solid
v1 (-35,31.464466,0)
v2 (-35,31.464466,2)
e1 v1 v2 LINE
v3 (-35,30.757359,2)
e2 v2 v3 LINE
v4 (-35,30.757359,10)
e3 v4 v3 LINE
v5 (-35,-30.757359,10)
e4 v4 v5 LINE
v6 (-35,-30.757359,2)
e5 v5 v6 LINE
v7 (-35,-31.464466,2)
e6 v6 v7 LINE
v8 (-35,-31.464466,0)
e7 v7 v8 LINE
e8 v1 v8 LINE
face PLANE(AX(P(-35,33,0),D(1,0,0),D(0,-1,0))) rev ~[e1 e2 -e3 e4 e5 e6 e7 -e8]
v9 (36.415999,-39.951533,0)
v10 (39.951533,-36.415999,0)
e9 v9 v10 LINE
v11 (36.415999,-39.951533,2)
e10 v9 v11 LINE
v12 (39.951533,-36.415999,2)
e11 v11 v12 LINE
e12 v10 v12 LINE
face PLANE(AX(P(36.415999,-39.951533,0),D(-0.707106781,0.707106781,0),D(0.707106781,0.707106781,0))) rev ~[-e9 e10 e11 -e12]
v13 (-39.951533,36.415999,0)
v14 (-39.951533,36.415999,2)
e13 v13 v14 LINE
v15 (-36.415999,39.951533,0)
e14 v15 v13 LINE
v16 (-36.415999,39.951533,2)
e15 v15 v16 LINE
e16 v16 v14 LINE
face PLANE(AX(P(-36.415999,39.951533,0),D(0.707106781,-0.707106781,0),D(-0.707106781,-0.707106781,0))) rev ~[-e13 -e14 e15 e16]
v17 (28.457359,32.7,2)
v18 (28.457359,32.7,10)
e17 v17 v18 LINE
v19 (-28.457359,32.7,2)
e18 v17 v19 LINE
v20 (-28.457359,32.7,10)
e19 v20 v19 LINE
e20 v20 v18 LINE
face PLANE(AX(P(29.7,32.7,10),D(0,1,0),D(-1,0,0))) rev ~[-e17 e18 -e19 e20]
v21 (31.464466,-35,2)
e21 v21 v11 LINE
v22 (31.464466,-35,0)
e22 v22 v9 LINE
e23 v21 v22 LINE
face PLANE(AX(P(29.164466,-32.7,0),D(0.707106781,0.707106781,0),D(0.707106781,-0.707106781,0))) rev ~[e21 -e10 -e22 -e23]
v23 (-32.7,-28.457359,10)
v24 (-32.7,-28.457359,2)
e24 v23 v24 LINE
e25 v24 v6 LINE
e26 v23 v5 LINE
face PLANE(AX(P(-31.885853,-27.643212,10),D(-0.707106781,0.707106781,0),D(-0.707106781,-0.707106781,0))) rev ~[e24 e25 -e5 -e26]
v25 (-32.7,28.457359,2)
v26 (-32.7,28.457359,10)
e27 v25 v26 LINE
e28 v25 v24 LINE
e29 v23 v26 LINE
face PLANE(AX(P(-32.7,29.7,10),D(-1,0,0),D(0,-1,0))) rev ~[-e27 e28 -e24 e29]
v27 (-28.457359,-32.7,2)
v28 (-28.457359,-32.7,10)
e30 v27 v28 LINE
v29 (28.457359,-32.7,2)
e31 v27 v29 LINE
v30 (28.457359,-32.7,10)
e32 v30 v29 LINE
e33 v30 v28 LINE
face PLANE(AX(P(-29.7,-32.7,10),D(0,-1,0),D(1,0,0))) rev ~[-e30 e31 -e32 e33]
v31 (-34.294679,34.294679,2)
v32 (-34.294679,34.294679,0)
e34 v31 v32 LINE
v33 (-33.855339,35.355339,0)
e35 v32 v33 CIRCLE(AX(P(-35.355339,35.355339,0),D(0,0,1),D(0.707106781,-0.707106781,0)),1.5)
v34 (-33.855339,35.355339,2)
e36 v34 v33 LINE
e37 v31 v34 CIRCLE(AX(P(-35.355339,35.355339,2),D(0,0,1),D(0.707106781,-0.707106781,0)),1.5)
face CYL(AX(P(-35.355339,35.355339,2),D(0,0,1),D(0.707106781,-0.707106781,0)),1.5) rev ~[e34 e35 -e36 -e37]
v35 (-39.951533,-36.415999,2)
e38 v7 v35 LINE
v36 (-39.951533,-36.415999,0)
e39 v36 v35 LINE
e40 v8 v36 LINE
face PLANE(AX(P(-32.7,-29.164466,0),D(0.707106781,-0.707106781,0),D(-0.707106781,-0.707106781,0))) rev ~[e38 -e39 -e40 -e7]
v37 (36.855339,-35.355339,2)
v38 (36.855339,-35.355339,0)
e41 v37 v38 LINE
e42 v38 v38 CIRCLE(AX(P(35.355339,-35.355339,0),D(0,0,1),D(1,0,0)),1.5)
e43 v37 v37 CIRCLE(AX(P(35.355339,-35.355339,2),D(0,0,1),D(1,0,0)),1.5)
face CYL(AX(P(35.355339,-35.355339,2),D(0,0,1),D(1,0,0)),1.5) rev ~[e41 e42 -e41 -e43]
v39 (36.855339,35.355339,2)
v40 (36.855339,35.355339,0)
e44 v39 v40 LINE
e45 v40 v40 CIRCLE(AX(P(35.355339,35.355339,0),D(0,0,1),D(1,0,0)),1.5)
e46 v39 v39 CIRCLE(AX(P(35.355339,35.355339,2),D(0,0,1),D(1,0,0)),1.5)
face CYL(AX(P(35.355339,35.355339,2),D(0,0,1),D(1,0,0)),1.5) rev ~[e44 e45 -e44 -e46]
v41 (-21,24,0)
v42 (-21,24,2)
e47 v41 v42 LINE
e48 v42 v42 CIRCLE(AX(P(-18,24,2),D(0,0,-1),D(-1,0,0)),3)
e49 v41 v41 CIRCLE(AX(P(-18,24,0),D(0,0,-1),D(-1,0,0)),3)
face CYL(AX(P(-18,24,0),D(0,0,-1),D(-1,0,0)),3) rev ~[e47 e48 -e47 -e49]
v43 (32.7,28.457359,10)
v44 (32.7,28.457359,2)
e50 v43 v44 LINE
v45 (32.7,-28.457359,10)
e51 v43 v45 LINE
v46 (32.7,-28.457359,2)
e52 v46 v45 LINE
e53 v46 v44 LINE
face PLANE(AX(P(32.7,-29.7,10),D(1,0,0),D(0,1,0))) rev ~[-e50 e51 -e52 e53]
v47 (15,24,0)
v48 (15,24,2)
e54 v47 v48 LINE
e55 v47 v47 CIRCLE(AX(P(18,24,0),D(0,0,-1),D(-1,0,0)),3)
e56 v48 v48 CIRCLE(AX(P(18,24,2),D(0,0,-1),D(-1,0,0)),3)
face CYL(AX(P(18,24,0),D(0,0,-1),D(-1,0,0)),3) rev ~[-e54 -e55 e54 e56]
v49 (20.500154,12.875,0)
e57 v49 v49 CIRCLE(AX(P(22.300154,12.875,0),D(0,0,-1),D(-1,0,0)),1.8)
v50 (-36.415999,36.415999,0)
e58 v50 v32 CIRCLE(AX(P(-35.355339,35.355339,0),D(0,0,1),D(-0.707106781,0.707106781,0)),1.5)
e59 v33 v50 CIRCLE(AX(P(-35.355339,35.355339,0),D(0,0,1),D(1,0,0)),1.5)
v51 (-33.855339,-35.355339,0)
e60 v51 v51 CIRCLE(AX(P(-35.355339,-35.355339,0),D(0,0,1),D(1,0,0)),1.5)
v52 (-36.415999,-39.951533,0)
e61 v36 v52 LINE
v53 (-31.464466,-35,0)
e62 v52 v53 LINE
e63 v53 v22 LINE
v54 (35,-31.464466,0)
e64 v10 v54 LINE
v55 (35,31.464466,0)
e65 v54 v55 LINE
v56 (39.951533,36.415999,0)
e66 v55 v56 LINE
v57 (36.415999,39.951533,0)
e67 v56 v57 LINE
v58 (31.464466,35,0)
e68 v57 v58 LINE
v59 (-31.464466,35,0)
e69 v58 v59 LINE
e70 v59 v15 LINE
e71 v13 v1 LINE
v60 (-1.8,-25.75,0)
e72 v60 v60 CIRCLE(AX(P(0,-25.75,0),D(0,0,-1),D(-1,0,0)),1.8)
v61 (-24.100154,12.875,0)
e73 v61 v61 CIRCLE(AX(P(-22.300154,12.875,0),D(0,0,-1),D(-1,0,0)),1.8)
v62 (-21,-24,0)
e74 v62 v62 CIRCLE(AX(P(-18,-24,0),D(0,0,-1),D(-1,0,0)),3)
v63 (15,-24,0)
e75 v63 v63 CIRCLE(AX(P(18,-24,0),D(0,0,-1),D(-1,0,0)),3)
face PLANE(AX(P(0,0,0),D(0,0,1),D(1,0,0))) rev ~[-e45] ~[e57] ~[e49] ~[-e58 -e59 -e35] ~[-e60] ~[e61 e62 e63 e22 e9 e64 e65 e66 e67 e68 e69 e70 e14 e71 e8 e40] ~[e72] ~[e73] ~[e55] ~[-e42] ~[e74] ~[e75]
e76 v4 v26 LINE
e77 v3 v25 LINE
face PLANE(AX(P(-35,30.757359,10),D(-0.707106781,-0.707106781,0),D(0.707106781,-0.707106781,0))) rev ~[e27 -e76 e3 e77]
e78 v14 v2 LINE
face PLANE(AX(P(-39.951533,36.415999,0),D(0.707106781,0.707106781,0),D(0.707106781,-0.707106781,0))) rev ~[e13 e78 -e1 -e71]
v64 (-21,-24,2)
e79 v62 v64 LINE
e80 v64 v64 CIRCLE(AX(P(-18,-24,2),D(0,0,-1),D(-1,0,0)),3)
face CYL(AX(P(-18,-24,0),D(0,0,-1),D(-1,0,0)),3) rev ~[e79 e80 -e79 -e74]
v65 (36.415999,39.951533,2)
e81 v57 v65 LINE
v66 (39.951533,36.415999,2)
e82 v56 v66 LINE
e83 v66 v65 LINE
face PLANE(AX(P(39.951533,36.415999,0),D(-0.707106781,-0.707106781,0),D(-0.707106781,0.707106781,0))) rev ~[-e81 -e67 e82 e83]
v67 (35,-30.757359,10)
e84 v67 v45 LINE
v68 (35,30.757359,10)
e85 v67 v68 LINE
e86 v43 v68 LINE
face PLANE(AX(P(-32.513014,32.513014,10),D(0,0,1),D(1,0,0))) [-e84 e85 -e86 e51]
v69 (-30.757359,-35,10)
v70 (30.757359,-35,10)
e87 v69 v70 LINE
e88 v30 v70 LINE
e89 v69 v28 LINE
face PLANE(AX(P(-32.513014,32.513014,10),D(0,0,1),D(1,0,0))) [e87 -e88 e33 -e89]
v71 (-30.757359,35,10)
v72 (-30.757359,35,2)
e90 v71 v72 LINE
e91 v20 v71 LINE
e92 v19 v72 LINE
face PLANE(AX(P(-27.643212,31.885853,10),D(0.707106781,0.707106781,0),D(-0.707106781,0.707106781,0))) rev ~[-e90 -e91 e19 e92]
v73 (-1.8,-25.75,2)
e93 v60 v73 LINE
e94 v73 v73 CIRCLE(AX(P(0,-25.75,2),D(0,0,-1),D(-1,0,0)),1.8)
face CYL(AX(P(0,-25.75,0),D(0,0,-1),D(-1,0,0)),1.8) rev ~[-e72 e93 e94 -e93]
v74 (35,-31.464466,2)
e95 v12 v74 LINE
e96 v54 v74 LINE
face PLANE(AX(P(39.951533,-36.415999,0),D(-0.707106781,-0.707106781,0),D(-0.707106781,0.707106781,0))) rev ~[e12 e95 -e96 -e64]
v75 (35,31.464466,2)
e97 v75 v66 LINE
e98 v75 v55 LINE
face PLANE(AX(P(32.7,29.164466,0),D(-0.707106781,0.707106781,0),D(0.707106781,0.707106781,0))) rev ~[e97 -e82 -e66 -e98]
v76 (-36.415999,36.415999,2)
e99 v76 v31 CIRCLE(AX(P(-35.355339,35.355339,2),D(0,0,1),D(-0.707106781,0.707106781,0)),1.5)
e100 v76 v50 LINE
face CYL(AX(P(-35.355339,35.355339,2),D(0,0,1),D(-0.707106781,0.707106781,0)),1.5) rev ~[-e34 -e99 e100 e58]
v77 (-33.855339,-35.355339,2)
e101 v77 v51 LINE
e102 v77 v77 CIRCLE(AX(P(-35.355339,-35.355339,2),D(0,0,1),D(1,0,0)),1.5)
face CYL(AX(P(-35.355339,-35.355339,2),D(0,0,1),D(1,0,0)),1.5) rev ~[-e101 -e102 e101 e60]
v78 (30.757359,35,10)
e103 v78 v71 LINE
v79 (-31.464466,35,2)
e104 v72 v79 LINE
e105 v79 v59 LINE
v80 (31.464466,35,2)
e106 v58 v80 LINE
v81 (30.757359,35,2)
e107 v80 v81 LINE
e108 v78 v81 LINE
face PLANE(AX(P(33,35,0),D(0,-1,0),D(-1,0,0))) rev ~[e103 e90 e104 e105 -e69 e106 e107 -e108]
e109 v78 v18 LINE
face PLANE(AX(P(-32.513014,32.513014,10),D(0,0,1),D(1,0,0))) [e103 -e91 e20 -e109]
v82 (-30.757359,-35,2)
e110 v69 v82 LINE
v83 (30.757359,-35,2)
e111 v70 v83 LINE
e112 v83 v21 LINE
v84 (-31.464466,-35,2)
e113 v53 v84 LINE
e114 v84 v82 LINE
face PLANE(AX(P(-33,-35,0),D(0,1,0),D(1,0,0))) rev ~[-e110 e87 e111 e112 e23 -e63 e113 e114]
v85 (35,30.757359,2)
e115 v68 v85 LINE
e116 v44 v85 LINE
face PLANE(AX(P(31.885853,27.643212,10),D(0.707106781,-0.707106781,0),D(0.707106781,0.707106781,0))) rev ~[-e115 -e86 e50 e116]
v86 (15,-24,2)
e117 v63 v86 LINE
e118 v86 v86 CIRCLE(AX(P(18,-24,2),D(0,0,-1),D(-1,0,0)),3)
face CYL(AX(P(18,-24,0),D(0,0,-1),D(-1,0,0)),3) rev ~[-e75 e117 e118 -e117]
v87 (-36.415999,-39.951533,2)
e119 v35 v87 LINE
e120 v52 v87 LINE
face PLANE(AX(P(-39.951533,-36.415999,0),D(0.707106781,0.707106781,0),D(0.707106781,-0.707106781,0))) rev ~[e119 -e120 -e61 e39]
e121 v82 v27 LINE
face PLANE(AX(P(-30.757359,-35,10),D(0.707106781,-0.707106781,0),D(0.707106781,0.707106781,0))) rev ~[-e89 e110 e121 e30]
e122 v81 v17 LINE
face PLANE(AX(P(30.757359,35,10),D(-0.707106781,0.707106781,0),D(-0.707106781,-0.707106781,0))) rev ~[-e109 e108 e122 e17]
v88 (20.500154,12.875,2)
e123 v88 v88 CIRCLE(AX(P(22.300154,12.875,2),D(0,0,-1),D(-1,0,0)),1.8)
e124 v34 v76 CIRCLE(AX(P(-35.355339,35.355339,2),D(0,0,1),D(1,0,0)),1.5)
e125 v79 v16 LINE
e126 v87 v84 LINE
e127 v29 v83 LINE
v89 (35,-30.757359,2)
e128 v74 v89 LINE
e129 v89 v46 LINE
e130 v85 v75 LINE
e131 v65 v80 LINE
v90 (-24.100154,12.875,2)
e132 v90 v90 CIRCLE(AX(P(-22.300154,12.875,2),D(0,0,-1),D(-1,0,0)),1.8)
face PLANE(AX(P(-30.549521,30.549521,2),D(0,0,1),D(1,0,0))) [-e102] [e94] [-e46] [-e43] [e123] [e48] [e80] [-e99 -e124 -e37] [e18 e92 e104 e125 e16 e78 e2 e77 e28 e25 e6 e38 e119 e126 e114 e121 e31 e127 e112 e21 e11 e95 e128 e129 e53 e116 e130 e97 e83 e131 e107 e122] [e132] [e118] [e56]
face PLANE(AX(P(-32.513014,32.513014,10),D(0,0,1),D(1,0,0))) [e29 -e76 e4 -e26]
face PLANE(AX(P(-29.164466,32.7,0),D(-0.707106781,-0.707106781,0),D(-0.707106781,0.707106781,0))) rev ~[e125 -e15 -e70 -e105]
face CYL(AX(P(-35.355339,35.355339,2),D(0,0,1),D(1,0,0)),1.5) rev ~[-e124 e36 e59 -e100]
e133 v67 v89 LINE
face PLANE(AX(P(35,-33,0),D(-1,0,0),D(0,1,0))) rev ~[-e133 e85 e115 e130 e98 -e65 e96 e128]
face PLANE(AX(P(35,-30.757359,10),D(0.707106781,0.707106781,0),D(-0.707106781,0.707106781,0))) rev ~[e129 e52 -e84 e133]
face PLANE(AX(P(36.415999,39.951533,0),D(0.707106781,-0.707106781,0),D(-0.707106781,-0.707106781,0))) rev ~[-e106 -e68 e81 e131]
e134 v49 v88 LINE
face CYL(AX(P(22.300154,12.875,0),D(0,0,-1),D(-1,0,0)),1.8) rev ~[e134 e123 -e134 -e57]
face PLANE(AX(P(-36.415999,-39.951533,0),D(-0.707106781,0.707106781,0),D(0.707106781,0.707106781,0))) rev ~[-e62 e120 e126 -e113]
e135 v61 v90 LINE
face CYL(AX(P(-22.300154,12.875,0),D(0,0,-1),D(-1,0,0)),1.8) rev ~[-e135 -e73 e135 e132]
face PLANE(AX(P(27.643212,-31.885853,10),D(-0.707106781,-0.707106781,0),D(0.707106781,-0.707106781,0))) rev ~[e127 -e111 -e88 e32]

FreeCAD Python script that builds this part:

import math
import FreeCAD as App
import Part
import Sketcher

V = App.Vector
Q = App.Units.Quantity


def add_polygon(sketch, points):
    """Adds a closed chain of lines whose ends are joined by coincident constraints."""
    first, n = sketch.GeometryCount, len(points)
    for a, b in zip(points, points[1:] + points[:1]):
        sketch.addGeometry(Part.LineSegment(App.Vector(*a, 0), App.Vector(*b, 0)), False)
    for i in range(n):
        sketch.addConstraint(Sketcher.Constraint("Coincident", first + i, 2, first + (i + 1) % n, 1))

doc = App.newDocument("Part")
body = doc.addObject("PartDesign::Body", "Body")

# Sketch on XY plane
sketch1 = body.newObject("Sketcher::SketchObject", "Sketch")
sketch1.AttachmentSupport = (doc.getObject("XY_Plane"), [""])
sketch1.MapMode = "FlatFace"
sketch1.addGeometry([
    Part.LineSegment(V(-33, -35, 0), V(33, -35, 0)),  # 0
    Part.ArcOfCircle(Part.Circle(V(33, -33, 0), V(0, 0, 1), 2), math.radians(-90), math.radians(0)),  # 1
    Part.LineSegment(V(35, -33, 0), V(35, 33, 0)),  # 2
    Part.ArcOfCircle(Part.Circle(V(33, 33, 0), V(0, 0, 1), 2), math.radians(0), math.radians(90)),  # 3
    Part.LineSegment(V(33, 35, 0), V(-33, 35, 0)),  # 4
    Part.ArcOfCircle(Part.Circle(V(-33, 33, 0), V(0, 0, 1), 2), math.radians(90), math.radians(180)),  # 5
    Part.LineSegment(V(-35, 33, 0), V(-35, -33, 0)),  # 6
    Part.ArcOfCircle(Part.Circle(V(-33, -33, 0), V(0, 0, 1), 2), math.radians(-180), math.radians(-90)),  # 7
], False)
sketch1.addConstraint([
    Sketcher.Constraint("Tangent", 0, 2, 1, 1),
    Sketcher.Constraint("Tangent", 1, 2, 2, 1),
    Sketcher.Constraint("Tangent", 2, 2, 3, 1),
    Sketcher.Constraint("Tangent", 3, 2, 4, 1),
    Sketcher.Constraint("Tangent", 4, 2, 5, 1),
    Sketcher.Constraint("Tangent", 5, 2, 6, 1),
    Sketcher.Constraint("Tangent", 6, 2, 7, 1),
    Sketcher.Constraint("Tangent", 7, 2, 0, 1),
    Sketcher.Constraint("Horizontal", 0),
    Sketcher.Constraint("Vertical", 2),
    Sketcher.Constraint("Horizontal", 4),
    Sketcher.Constraint("Vertical", 6),
    Sketcher.Constraint("Equal", 1, 3),
    Sketcher.Constraint("Equal", 3, 5),
    Sketcher.Constraint("Equal", 5, 7),
    Sketcher.Constraint("Symmetric", 1, 3, 5, 3, -1, 1),
    Sketcher.Constraint("Equal", 4, 2),
    Sketcher.Constraint("Radius", 1, Q("2 mm")),
    Sketcher.Constraint("DistanceX", 0, 1, 0, 2, Q("66 mm")),
])
pad1 = body.newObject("PartDesign::Pad", "Pad")
pad1.Profile = sketch1
pad1.Length = 10

# Sketch on XY plane
sketch2 = body.newObject("Sketcher::SketchObject", "Sketch001")
sketch2.AttachmentSupport = (doc.getObject("XY_Plane"), [""])
sketch2.MapMode = "FlatFace"
sketch2.AttachmentOffset = App.Placement(V(0, 0, 10), App.Rotation())
sketch2.addGeometry([
    Part.LineSegment(V(-29.7, -32.7, 0), V(29.7, -32.7, 0)),  # 0
    Part.ArcOfCircle(Part.Circle(V(29.7, -29.7, 0), V(0, 0, 1), 3), math.radians(-90), math.radians(0)),  # 1
    Part.LineSegment(V(32.7, -29.7, 0), V(32.7, 29.7, 0)),  # 2
    Part.ArcOfCircle(Part.Circle(V(29.7, 29.7, 0), V(0, 0, 1), 3), math.radians(0), math.radians(90)),  # 3
    Part.LineSegment(V(29.7, 32.7, 0), V(-29.7, 32.7, 0)),  # 4
    Part.ArcOfCircle(Part.Circle(V(-29.7, 29.7, 0), V(0, 0, 1), 3), math.radians(90), math.radians(180)),  # 5
    Part.LineSegment(V(-32.7, 29.7, 0), V(-32.7, -29.7, 0)),  # 6
    Part.ArcOfCircle(Part.Circle(V(-29.7, -29.7, 0), V(0, 0, 1), 3), math.radians(180), math.radians(270)),  # 7
], False)
sketch2.addConstraint([
    Sketcher.Constraint("Tangent", 0, 2, 1, 1),
    Sketcher.Constraint("Tangent", 1, 2, 2, 1),
    Sketcher.Constraint("Tangent", 2, 2, 3, 1),
    Sketcher.Constraint("Tangent", 3, 2, 4, 1),
    Sketcher.Constraint("Tangent", 4, 2, 5, 1),
    Sketcher.Constraint("Tangent", 5, 2, 6, 1),
    Sketcher.Constraint("Tangent", 6, 2, 7, 1),
    Sketcher.Constraint("Tangent", 7, 2, 0, 1),
    Sketcher.Constraint("Horizontal", 0),
    Sketcher.Constraint("Vertical", 2),
    Sketcher.Constraint("Horizontal", 4),
    Sketcher.Constraint("Vertical", 6),
    Sketcher.Constraint("Equal", 1, 3),
    Sketcher.Constraint("Equal", 3, 5),
    Sketcher.Constraint("Equal", 5, 7),
    Sketcher.Constraint("Symmetric", 1, 3, 5, 3, -1, 1),
    Sketcher.Constraint("Equal", 4, 2),
    Sketcher.Constraint("Radius", 1, Q("3 mm")),
    Sketcher.Constraint("DistanceX", 0, 1, 0, 2, Q("59.4 mm")),
])
pocket1 = body.newObject("PartDesign::Pocket", "Pocket")
pocket1.Profile = sketch2
pocket1.Length = 8

# Sketch on XY plane
sketch3 = body.newObject("Sketcher::SketchObject", "Sketch002")
sketch3.AttachmentSupport = (doc.getObject("XY_Plane"), [""])
sketch3.MapMode = "FlatFace"
sketch3.addGeometry(Part.Circle(V(22.3, 12.9, 0), V(0, 0, 1), 1.8), False)
sketch3.addConstraint([
    Sketcher.Constraint("Diameter", 0, Q("3.6 mm")),
    Sketcher.Constraint("DistanceY", -1, 1, 0, 3, Q("12.875 mm")),
    Sketcher.Constraint("DistanceX", -1, 1, 0, 3, Q("22.300154 mm")),
])
pocket2 = body.newObject("PartDesign::Pocket", "Pocket001")
pocket2.Profile = sketch3
pocket2.Type = "UpToFirst"
pocket2.Reversed = True

# Sketch on XY plane
sketch4 = body.newObject("Sketcher::SketchObject", "Sketch003")
sketch4.AttachmentSupport = (doc.getObject("XY_Plane"), [""])
sketch4.MapMode = "FlatFace"
sketch4.addGeometry(Part.Circle(V(-22.3, 12.9, 0), V(0, 0, 1), 1.8), False)
sketch4.addConstraint([
    Sketcher.Constraint("Diameter", 0, Q("3.6 mm")),
    Sketcher.Constraint("DistanceY", -1, 1, 0, 3, Q("12.875 mm")),
    Sketcher.Constraint("DistanceX", 0, 3, -1, 1, Q("22.300154 mm")),
])
pocket3 = body.newObject("PartDesign::Pocket", "Pocket002")
pocket3.Profile = sketch4
pocket3.Type = "UpToFirst"
pocket3.Reversed = True

# Sketch on XY plane
sketch5 = body.newObject("Sketcher::SketchObject", "Sketch004")
sketch5.AttachmentSupport = (doc.getObject("XY_Plane"), [""])
sketch5.MapMode = "FlatFace"
sketch5.addGeometry(Part.Circle(V(0, -25.8, 0), V(0, 0, 1), 1.8), False)
sketch5.addConstraint([
    Sketcher.Constraint("PointOnObject", 0, 3, -2),
    Sketcher.Constraint("Diameter", 0, Q("3.6 mm")),
    Sketcher.Constraint("DistanceY", 0, 3, -1, 1, Q("25.75 mm")),
])
pocket4 = body.newObject("PartDesign::Pocket", "Pocket003")
pocket4.Profile = sketch5
pocket4.Type = "UpToFirst"
pocket4.Reversed = True

# Sketch on XY plane
sketch6 = body.newObject("Sketcher::SketchObject", "Sketch005")
sketch6.AttachmentSupport = (doc.getObject("XY_Plane"), [""])
sketch6.MapMode = "FlatFace"
sketch6.addGeometry([
    Part.Circle(V(18, 24, 0), V(0, 0, 1), 3),
    Part.Circle(V(-18, 24, 0), V(0, 0, 1), 3),
    Part.Circle(V(18, -24, 0), V(0, 0, 1), 3),
    Part.Circle(V(-18, -24, 0), V(0, 0, 1), 3),
], False)
sketch6.addConstraint([
    Sketcher.Constraint("Equal", 0, 1),
    Sketcher.Constraint("Equal", 1, 2),
    Sketcher.Constraint("Equal", 2, 3),
    Sketcher.Constraint("Symmetric", 1, 3, 2, 3, -1, 1),
    Sketcher.Constraint("Symmetric", 0, 3, 3, 3, -1, 1),
    Sketcher.Constraint("Symmetric", 0, 3, 1, 3, -2),
    Sketcher.Constraint("Diameter", 0, Q("6 mm")),
    Sketcher.Constraint("DistanceX", -1, 1, 0, 3, Q("18 mm")),
    Sketcher.Constraint("DistanceY", -1, 1, 0, 3, Q("24 mm")),
])
pocket5 = body.newObject("PartDesign::Pocket", "Pocket004")
pocket5.Profile = sketch6
pocket5.Type = "ThroughAll"
pocket5.Reversed = True

# Sketch on XY plane
sketch7 = body.newObject("Sketcher::SketchObject", "Sketch006")
sketch7.AttachmentSupport = (doc.getObject("XY_Plane"), [""])
sketch7.MapMode = "FlatFace"
sketch7.addGeometry([
    Part.LineSegment(V(-29.2, 32.7, 0), V(-36.4, 40, 0)),  # 0
    Part.LineSegment(V(-36.4, 40, 0), V(-40, 36.4, 0)),  # 1
    Part.LineSegment(V(-40, 36.4, 0), V(-32.7, 29.2, 0)),  # 2
    Part.LineSegment(V(-32.7, 29.2, 0), V(-32.7, 29.7, 0)),  # 3
    Part.ArcOfCircle(Part.Circle(V(-29.7, 29.7, 0), V(0, 0, 1), 3), math.radians(90), math.radians(180)),  # 4
    Part.LineSegment(V(-29.7, 32.7, 0), V(-29.2, 32.7, 0)),  # 5
    Part.LineSegment(V(29.2, 32.7, 0), V(29.7, 32.7, 0)),  # 6
    Part.ArcOfCircle(Part.Circle(V(29.7, 29.7, 0), V(0, 0, 1), 3), math.radians(0), math.radians(90)),  # 7
    Part.LineSegment(V(32.7, 29.7, 0), V(32.7, 29.2, 0)),  # 8
    Part.LineSegment(V(32.7, 29.2, 0), V(40, 36.4, 0)),  # 9
    Part.LineSegment(V(40, 36.4, 0), V(36.4, 40, 0)),  # 10
    Part.LineSegment(V(36.4, 40, 0), V(29.2, 32.7, 0)),  # 11
    Part.LineSegment(V(36.4, -40, 0), V(40, -36.4, 0)),  # 12
    Part.LineSegment(V(40, -36.4, 0), V(32.7, -29.2, 0)),  # 13
    Part.LineSegment(V(32.7, -29.2, 0), V(32.7, -29.7, 0)),  # 14
    Part.ArcOfCircle(Part.Circle(V(29.7, -29.7, 0), V(0, 0, 1), 3), math.radians(-90), math.radians(0)),  # 15
    Part.LineSegment(V(29.7, -32.7, 0), V(29.2, -32.7, 0)),  # 16
    Part.LineSegment(V(29.2, -32.7, 0), V(36.4, -40, 0)),  # 17
    Part.LineSegment(V(-40, -36.4, 0), V(-36.4, -40, 0)),  # 18
    Part.LineSegment(V(-36.4, -40, 0), V(-29.2, -32.7, 0)),  # 19
    Part.LineSegment(V(-29.2, -32.7, 0), V(-29.7, -32.7, 0)),  # 20
    Part.ArcOfCircle(Part.Circle(V(-29.7, -29.7, 0), V(0, 0, 1), 3), math.radians(180), math.radians(270)),  # 21
    Part.LineSegment(V(-32.7, -29.7, 0), V(-32.7, -29.2, 0)),  # 22
    Part.LineSegment(V(-32.7, -29.2, 0), V(-40, -36.4, 0)),  # 23
], False)
sketch7.addConstraint([
    Sketcher.Constraint("Coincident", 0, 2, 1, 1),
    Sketcher.Constraint("Coincident", 1, 2, 2, 1),
    Sketcher.Constraint("Coincident", 2, 2, 3, 1),
    Sketcher.Constraint("Tangent", 3, 2, 4, 2),
    Sketcher.Constraint("Tangent", 4, 1, 5, 1),
    Sketcher.Constraint("Coincident", 5, 2, 0, 1),
    Sketcher.Constraint("Tangent", 6, 2, 7, 2),
    Sketcher.Constraint("Tangent", 7, 1, 8, 1),
    Sketcher.Constraint("Coincident", 8, 2, 9, 1),
    Sketcher.Constraint("Coincident", 9, 2, 10, 1),
    Sketcher.Constraint("Coincident", 10, 2, 11, 1),
    Sketcher.Constraint("Coincident", 11, 2, 6, 1),
    Sketcher.Constraint("Coincident", 12, 2, 13, 1),
    Sketcher.Constraint("Coincident", 13, 2, 14, 1),
    Sketcher.Constraint("Tangent", 14, 2, 15, 2),
    Sketcher.Constraint("Tangent", 15, 1, 16, 1),
    Sketcher.Constraint("Coincident", 16, 2, 17, 1),
    Sketcher.Constraint("Coincident", 17, 2, 12, 1),
    Sketcher.Constraint("Coincident", 18, 2, 19, 1),
    Sketcher.Constraint("Coincident", 19, 2, 20, 1),
    Sketcher.Constraint("Tangent", 20, 2, 21, 2),
    Sketcher.Constraint("Tangent", 21, 1, 22, 1),
    Sketcher.Constraint("Coincident", 22, 2, 23, 1),
    Sketcher.Constraint("Coincident", 23, 2, 18, 1),
    Sketcher.Constraint("Vertical", 3),
    Sketcher.Constraint("Horizontal", 5),
    Sketcher.Constraint("Horizontal", 6),
    Sketcher.Constraint("Vertical", 8),
    Sketcher.Constraint("Vertical", 14),
    Sketcher.Constraint("Horizontal", 16),
    Sketcher.Constraint("Horizontal", 20),
    Sketcher.Constraint("Vertical", 22),
    Sketcher.Constraint("Equal", 4, 7),
    Sketcher.Constraint("Equal", 7, 15),
    Sketcher.Constraint("Equal", 15, 21),
    Sketcher.Constraint("Symmetric", 4, 3, 15, 3, -1, 1),
    Sketcher.Constraint("Symmetric", 7, 3, 21, 3, -1, 1),
    Sketcher.Constraint("Symmetric", 1, 2, 12, 2, -1, 1),
    Sketcher.Constraint("Symmetric", 0, 2, 17, 2, -1, 1),
    Sketcher.Constraint("Symmetric", 10, 2, 18, 2, -1, 1),
    Sketcher.Constraint("Symmetric", 9, 2, 23, 2, -1, 1),
    Sketcher.Constraint("Symmetric", 4, 3, 7, 3, -2),
    Sketcher.Constraint("Symmetric", 1, 2, 9, 2, -2),
    Sketcher.Constraint("Symmetric", 0, 2, 10, 2, -2),
    Sketcher.Constraint("Perpendicular", 0, 1),
    Sketcher.Constraint("Perpendicular", 1, 2),
    Sketcher.Constraint("Perpendicular", 2, 9),
    Sketcher.Constraint("Perpendicular", 9, 10),
    Sketcher.Constraint("Perpendicular", 10, 11),
    Sketcher.Constraint("Perpendicular", 12, 13),
    Sketcher.Constraint("Parallel", 13, 17),
    Sketcher.Constraint("Perpendicular", 18, 19),
    Sketcher.Constraint("Parallel", 19, 23),
    Sketcher.Constraint("Equal", 20, 3),
    Sketcher.Constraint("Radius", 4, Q("3 mm")),
    Sketcher.Constraint("Distance", 1, Q("5 mm")),
    Sketcher.Constraint("DistanceX", 4, 3, -1, 1, Q("29.7 mm")),
    Sketcher.Constraint("DistanceY", -1, 1, 4, 3, Q("29.7 mm")),
    Sketcher.Constraint("DistanceX", 0, 2, -1, 1, Q("36.415999 mm")),
])
pad2 = body.newObject("PartDesign::Pad", "Pad001")
pad2.Profile = sketch7
pad2.Length = 10

# Sketch on XY plane
sketch8 = body.newObject("Sketcher::SketchObject", "Sketch007")
sketch8.AttachmentSupport = (doc.getObject("XY_Plane"), [""])
sketch8.MapMode = "FlatFace"
sketch8.AttachmentOffset = App.Placement(V(0, 0, 10), App.Rotation())
add_polygon(sketch8, [(-30.8, -35), (-27.6, -31.9), (-31.9, -27.6), (-35, -30.8), (-35, -31.5), (-40, -36.4), (-36.4, -40), (-31.5, -35)])  # lines 0-7
add_polygon(sketch8, [(30.8, -35), (31.5, -35), (36.4, -40), (40, -36.4), (35, -31.5), (35, -30.8), (31.9, -27.6), (27.6, -31.9)])  # lines 8-15
add_polygon(sketch8, [(35, 30.8), (35, 31.5), (40, 36.4), (36.4, 40), (31.5, 35), (30.8, 35), (27.6, 31.9), (31.9, 27.6)])  # lines 16-23
add_polygon(sketch8, [(-31.9, 27.6), (-27.6, 31.9), (-30.8, 35), (-31.5, 35), (-36.4, 40), (-40, 36.4), (-35, 31.5), (-35, 30.8)])  # lines 24-31
sketch8.addConstraint([
    Sketcher.Constraint("Vertical", 3),
    Sketcher.Constraint("Horizontal", 7),
    Sketcher.Constraint("Horizontal", 8),
    Sketcher.Constraint("Vertical", 12),
    Sketcher.Constraint("Vertical", 16),
    Sketcher.Constraint("Horizontal", 20),
    Sketcher.Constraint("Horizontal", 26),
    Sketcher.Constraint("Vertical", 30),
    Sketcher.Constraint("Symmetric", 3, 2, 16, 2, -1, 1),
    Sketcher.Constraint("Symmetric", 4, 2, 17, 2, -1, 1),
    Sketcher.Constraint("Symmetric", 5, 2, 18, 2, -1, 1),
    Sketcher.Constraint("Symmetric", 6, 2, 19, 2, -1, 1),
    Sketcher.Constraint("Symmetric", 0, 2, 21, 2, -1, 1),
    Sketcher.Constraint("Symmetric", 1, 2, 22, 2, -1, 1),
    Sketcher.Constraint("Symmetric", 14, 2, 24, 2, -1, 1),
    Sketcher.Constraint("Symmetric", 15, 2, 25, 2, -1, 1),
    Sketcher.Constraint("Symmetric", 9, 2, 27, 2, -1, 1),
    Sketcher.Constraint("Symmetric", 10, 2, 28, 2, -1, 1),
    Sketcher.Constraint("Symmetric", 11, 2, 29, 2, -1, 1),
    Sketcher.Constraint("Symmetric", 13, 2, 31, 2, -1, 1),
    Sketcher.Constraint("Symmetric", 6, 2, 8, 2, -2),
    Sketcher.Constraint("Symmetric", 5, 2, 9, 2, -2),
    Sketcher.Constraint("Symmetric", 4, 2, 10, 2, -2),
    Sketcher.Constraint("Symmetric", 3, 2, 11, 2, -2),
    Sketcher.Constraint("Symmetric", 1, 2, 13, 2, -2),
    Sketcher.Constraint("Symmetric", 0, 2, 14, 2, -2),
    Sketcher.Constraint("Perpendicular", 0, 1),
    Sketcher.Constraint("Perpendicular", 1, 2),
    Sketcher.Constraint("Parallel", 2, 4),
    Sketcher.Constraint("Perpendicular", 4, 5),
    Sketcher.Constraint("Perpendicular", 5, 6),
    Sketcher.Constraint("Perpendicular", 6, 9),
    Sketcher.Constraint("Parallel", 11, 13),
    Sketcher.Constraint("Perpendicular", 14, 15),
    Sketcher.Constraint("Parallel", 19, 21),
    Sketcher.Constraint("Perpendicular", 22, 23),
    Sketcher.Constraint("Parallel", 25, 27),
    Sketcher.Constraint("Parallel", 29, 31),
    Sketcher.Constraint("Equal", 26, 3),
    Sketcher.Constraint("Equal", 0, 2),
    Sketcher.Constraint("Distance", 1, Q("6 mm")),
    Sketcher.Constraint("Distance", 5, Q("5 mm")),
    Sketcher.Constraint("DistanceX", 2, 2, -1, 1, Q("35 mm")),
    Sketcher.Constraint("DistanceY", 6, 2, -1, 1, Q("35 mm")),
    Sketcher.Constraint("DistanceY", 4, 2, -1, 1, Q("36.415999 mm")),
    Sketcher.Constraint("Distance", 0, Q("4.404069 mm")),
])
pocket6 = body.newObject("PartDesign::Pocket", "Pocket005")
pocket6.Profile = sketch8
pocket6.Length = 8

# Sketch on XY plane
sketch9 = body.newObject("Sketcher::SketchObject", "Sketch008")
sketch9.AttachmentSupport = (doc.getObject("XY_Plane"), [""])
sketch9.MapMode = "FlatFace"
sketch9.AttachmentOffset = App.Placement(V(0, 0, 2), App.Rotation())
sketch9.addGeometry([
    Part.ArcOfCircle(Part.Circle(V(-35.4, 35.4, 0), V(0, 0, 1), 1.5), math.radians(135), math.radians(315)),
    Part.LineSegment(V(-34.3, 34.3, 0), V(-36.4, 36.4, 0)),
], False)
sketch9.addConstraint([
    Sketcher.Constraint("Coincident", 0, 1, 1, 2),
    Sketcher.Constraint("Coincident", 1, 1, 0, 2),
    Sketcher.Constraint("Radius", 0, Q("1.5 mm")),
    Sketcher.Constraint("Angle", 1, Q("135 deg")),
    Sketcher.Constraint("DistanceX", 0, 1, -1, 1, Q("36.415999 mm")),
    Sketcher.Constraint("DistanceY", -1, 1, 0, 1, Q("36.415999 mm")),
    Sketcher.Constraint("DistanceX", 0, 3, -1, 1, Q("35.355339 mm")),
])
pocket7 = body.newObject("PartDesign::Pocket", "Pocket006")
pocket7.Profile = sketch9
pocket7.Type = "UpToFirst"

# Sketch on XY plane
sketch10 = body.newObject("Sketcher::SketchObject", "Sketch009")
sketch10.AttachmentSupport = (doc.getObject("XY_Plane"), [""])
sketch10.MapMode = "FlatFace"
sketch10.AttachmentOffset = App.Placement(V(0, 0, 2), App.Rotation())
sketch10.addGeometry([
    Part.LineSegment(V(-36.4, 36.4, 0), V(-34.3, 34.3, 0)),
    Part.ArcOfCircle(Part.Circle(V(-35.4, 35.4, 0), V(0, 0, 1), 1.5), math.radians(-45), math.radians(0)),
    Part.ArcOfCircle(Part.Circle(V(-35.4, 35.4, 0), V(0, 0, 1), 1.5), math.radians(0), math.radians(135)),
], False)
sketch10.addConstraint([
    Sketcher.Constraint("Coincident", 0, 2, 1, 1),
    Sketcher.Constraint("Tangent", 1, 2, 2, 1),
    Sketcher.Constraint("Coincident", 2, 2, 0, 1),
    Sketcher.Constraint("Equal", 1, 2),
    Sketcher.Constraint("Horizontal", 2, 3, 1, 2),
    Sketcher.Constraint("Radius", 1, Q("1.5 mm")),
    Sketcher.Constraint("Angle", 0, Q("-45 deg")),
    Sketcher.Constraint("DistanceX", 2, 2, -1, 1, Q("36.415999 mm")),
    Sketcher.Constraint("DistanceY", -1, 1, 2, 2, Q("36.415999 mm")),
    Sketcher.Constraint("DistanceX", 1, 3, -1, 1, Q("35.355339 mm")),
])
pocket8 = body.newObject("PartDesign::Pocket", "Pocket007")
pocket8.Profile = sketch10
pocket8.Type = "UpToFirst"

# Sketch on XY plane
sketch11 = body.newObject("Sketcher::SketchObject", "Sketch010")
sketch11.AttachmentSupport = (doc.getObject("XY_Plane"), [""])
sketch11.MapMode = "FlatFace"
sketch11.AttachmentOffset = App.Placement(V(0, 0, 2), App.Rotation())
sketch11.addGeometry([
    Part.ArcOfCircle(Part.Circle(V(-35.4, 35.4, 0), V(0, 0, 1), 1.5), math.radians(135), math.radians(315)),
    Part.LineSegment(V(-34.3, 34.3, 0), V(-36.4, 36.4, 0)),
], False)
sketch11.addConstraint([
    Sketcher.Constraint("Coincident", 0, 1, 1, 2),
    Sketcher.Constraint("Coincident", 1, 1, 0, 2),
    Sketcher.Constraint("Radius", 0, Q("1.5 mm")),
    Sketcher.Constraint("Angle", 1, Q("135 deg")),
    Sketcher.Constraint("DistanceX", 0, 1, -1, 1, Q("36.415999 mm")),
    Sketcher.Constraint("DistanceY", -1, 1, 0, 1, Q("36.415999 mm")),
    Sketcher.Constraint("DistanceX", 0, 3, -1, 1, Q("35.355339 mm")),
])
pocket9 = body.newObject("PartDesign::Pocket", "Pocket008")
pocket9.Profile = sketch11
pocket9.Length = 2

# Sketch on XY plane
sketch12 = body.newObject("Sketcher::SketchObject", "Sketch011")
sketch12.AttachmentSupport = (doc.getObject("XY_Plane"), [""])
sketch12.MapMode = "FlatFace"
sketch12.AttachmentOffset = App.Placement(V(0, 0, 2), App.Rotation())
sketch12.addGeometry([
    Part.LineSegment(V(-36.4, 36.4, 0), V(-34.3, 34.3, 0)),
    Part.ArcOfCircle(Part.Circle(V(-35.4, 35.4, 0), V(0, 0, 1), 1.5), math.radians(-45), math.radians(0)),
    Part.ArcOfCircle(Part.Circle(V(-35.4, 35.4, 0), V(0, 0, 1), 1.5), math.radians(0), math.radians(135)),
], False)
sketch12.addConstraint([
    Sketcher.Constraint("Coincident", 0, 2, 1, 1),
    Sketcher.Constraint("Tangent", 1, 2, 2, 1),
    Sketcher.Constraint("Coincident", 2, 2, 0, 1),
    Sketcher.Constraint("Equal", 1, 2),
    Sketcher.Constraint("Horizontal", 2, 3, 1, 2),
    Sketcher.Constraint("Radius", 1, Q("1.5 mm")),
    Sketcher.Constraint("Angle", 0, Q("-45 deg")),
    Sketcher.Constraint("DistanceX", 2, 2, -1, 1, Q("36.415999 mm")),
    Sketcher.Constraint("DistanceY", -1, 1, 2, 2, Q("36.415999 mm")),
    Sketcher.Constraint("DistanceX", 1, 3, -1, 1, Q("35.355339 mm")),
])
pocket10 = body.newObject("PartDesign::Pocket", "Pocket009")
pocket10.Profile = sketch12
pocket10.Length = 2

# Sketch on XY plane
sketch13 = body.newObject("Sketcher::SketchObject", "Sketch012")
sketch13.AttachmentSupport = (doc.getObject("XY_Plane"), [""])
sketch13.MapMode = "FlatFace"
sketch13.AttachmentOffset = App.Placement(V(0, 0, 2), App.Rotation())
sketch13.addGeometry(Part.Circle(V(35.4, 35.4, 0), V(0, 0, 1), 1.5), False)
sketch13.addConstraint([
    Sketcher.Constraint("Diameter", 0, Q("3 mm")),
    Sketcher.Constraint("DistanceX", -1, 1, 0, 3, Q("35.355339 mm")),
    Sketcher.Constraint("DistanceY", -1, 1, 0, 3, Q("35.355339 mm")),
])
pocket11 = body.newObject("PartDesign::Pocket", "Pocket010")
pocket11.Profile = sketch13
pocket11.Type = "UpToFirst"

# Sketch on XY plane
sketch14 = body.newObject("Sketcher::SketchObject", "Sketch013")
sketch14.AttachmentSupport = (doc.getObject("XY_Plane"), [""])
sketch14.MapMode = "FlatFace"
sketch14.AttachmentOffset = App.Placement(V(0, 0, 2), App.Rotation())
sketch14.addGeometry(Part.Circle(V(35.4, -35.4, 0), V(0, 0, 1), 1.5), False)
sketch14.addConstraint([
    Sketcher.Constraint("Diameter", 0, Q("3 mm")),
    Sketcher.Constraint("DistanceX", -1, 1, 0, 3, Q("35.355339 mm")),
    Sketcher.Constraint("DistanceY", 0, 3, -1, 1, Q("35.355339 mm")),
])
pocket12 = body.newObject("PartDesign::Pocket", "Pocket011")
pocket12.Profile = sketch14
pocket12.Type = "UpToFirst"

# Sketch on XY plane
sketch15 = body.newObject("Sketcher::SketchObject", "Sketch014")
sketch15.AttachmentSupport = (doc.getObject("XY_Plane"), [""])
sketch15.MapMode = "FlatFace"
sketch15.AttachmentOffset = App.Placement(V(0, 0, 2), App.Rotation())
sketch15.addGeometry(Part.Circle(V(-35.4, -35.4, 0), V(0, 0, 1), 1.5), False)
sketch15.addConstraint([
    Sketcher.Constraint("Diameter", 0, Q("3 mm")),
    Sketcher.Constraint("DistanceX", 0, 3, -1, 1, Q("35.355339 mm")),
    Sketcher.Constraint("DistanceY", 0, 3, -1, 1, Q("35.355339 mm")),
])
pocket13 = body.newObject("PartDesign::Pocket", "Pocket012")
pocket13.Profile = sketch15
pocket13.Type = "UpToFirst"

doc.recompute()
